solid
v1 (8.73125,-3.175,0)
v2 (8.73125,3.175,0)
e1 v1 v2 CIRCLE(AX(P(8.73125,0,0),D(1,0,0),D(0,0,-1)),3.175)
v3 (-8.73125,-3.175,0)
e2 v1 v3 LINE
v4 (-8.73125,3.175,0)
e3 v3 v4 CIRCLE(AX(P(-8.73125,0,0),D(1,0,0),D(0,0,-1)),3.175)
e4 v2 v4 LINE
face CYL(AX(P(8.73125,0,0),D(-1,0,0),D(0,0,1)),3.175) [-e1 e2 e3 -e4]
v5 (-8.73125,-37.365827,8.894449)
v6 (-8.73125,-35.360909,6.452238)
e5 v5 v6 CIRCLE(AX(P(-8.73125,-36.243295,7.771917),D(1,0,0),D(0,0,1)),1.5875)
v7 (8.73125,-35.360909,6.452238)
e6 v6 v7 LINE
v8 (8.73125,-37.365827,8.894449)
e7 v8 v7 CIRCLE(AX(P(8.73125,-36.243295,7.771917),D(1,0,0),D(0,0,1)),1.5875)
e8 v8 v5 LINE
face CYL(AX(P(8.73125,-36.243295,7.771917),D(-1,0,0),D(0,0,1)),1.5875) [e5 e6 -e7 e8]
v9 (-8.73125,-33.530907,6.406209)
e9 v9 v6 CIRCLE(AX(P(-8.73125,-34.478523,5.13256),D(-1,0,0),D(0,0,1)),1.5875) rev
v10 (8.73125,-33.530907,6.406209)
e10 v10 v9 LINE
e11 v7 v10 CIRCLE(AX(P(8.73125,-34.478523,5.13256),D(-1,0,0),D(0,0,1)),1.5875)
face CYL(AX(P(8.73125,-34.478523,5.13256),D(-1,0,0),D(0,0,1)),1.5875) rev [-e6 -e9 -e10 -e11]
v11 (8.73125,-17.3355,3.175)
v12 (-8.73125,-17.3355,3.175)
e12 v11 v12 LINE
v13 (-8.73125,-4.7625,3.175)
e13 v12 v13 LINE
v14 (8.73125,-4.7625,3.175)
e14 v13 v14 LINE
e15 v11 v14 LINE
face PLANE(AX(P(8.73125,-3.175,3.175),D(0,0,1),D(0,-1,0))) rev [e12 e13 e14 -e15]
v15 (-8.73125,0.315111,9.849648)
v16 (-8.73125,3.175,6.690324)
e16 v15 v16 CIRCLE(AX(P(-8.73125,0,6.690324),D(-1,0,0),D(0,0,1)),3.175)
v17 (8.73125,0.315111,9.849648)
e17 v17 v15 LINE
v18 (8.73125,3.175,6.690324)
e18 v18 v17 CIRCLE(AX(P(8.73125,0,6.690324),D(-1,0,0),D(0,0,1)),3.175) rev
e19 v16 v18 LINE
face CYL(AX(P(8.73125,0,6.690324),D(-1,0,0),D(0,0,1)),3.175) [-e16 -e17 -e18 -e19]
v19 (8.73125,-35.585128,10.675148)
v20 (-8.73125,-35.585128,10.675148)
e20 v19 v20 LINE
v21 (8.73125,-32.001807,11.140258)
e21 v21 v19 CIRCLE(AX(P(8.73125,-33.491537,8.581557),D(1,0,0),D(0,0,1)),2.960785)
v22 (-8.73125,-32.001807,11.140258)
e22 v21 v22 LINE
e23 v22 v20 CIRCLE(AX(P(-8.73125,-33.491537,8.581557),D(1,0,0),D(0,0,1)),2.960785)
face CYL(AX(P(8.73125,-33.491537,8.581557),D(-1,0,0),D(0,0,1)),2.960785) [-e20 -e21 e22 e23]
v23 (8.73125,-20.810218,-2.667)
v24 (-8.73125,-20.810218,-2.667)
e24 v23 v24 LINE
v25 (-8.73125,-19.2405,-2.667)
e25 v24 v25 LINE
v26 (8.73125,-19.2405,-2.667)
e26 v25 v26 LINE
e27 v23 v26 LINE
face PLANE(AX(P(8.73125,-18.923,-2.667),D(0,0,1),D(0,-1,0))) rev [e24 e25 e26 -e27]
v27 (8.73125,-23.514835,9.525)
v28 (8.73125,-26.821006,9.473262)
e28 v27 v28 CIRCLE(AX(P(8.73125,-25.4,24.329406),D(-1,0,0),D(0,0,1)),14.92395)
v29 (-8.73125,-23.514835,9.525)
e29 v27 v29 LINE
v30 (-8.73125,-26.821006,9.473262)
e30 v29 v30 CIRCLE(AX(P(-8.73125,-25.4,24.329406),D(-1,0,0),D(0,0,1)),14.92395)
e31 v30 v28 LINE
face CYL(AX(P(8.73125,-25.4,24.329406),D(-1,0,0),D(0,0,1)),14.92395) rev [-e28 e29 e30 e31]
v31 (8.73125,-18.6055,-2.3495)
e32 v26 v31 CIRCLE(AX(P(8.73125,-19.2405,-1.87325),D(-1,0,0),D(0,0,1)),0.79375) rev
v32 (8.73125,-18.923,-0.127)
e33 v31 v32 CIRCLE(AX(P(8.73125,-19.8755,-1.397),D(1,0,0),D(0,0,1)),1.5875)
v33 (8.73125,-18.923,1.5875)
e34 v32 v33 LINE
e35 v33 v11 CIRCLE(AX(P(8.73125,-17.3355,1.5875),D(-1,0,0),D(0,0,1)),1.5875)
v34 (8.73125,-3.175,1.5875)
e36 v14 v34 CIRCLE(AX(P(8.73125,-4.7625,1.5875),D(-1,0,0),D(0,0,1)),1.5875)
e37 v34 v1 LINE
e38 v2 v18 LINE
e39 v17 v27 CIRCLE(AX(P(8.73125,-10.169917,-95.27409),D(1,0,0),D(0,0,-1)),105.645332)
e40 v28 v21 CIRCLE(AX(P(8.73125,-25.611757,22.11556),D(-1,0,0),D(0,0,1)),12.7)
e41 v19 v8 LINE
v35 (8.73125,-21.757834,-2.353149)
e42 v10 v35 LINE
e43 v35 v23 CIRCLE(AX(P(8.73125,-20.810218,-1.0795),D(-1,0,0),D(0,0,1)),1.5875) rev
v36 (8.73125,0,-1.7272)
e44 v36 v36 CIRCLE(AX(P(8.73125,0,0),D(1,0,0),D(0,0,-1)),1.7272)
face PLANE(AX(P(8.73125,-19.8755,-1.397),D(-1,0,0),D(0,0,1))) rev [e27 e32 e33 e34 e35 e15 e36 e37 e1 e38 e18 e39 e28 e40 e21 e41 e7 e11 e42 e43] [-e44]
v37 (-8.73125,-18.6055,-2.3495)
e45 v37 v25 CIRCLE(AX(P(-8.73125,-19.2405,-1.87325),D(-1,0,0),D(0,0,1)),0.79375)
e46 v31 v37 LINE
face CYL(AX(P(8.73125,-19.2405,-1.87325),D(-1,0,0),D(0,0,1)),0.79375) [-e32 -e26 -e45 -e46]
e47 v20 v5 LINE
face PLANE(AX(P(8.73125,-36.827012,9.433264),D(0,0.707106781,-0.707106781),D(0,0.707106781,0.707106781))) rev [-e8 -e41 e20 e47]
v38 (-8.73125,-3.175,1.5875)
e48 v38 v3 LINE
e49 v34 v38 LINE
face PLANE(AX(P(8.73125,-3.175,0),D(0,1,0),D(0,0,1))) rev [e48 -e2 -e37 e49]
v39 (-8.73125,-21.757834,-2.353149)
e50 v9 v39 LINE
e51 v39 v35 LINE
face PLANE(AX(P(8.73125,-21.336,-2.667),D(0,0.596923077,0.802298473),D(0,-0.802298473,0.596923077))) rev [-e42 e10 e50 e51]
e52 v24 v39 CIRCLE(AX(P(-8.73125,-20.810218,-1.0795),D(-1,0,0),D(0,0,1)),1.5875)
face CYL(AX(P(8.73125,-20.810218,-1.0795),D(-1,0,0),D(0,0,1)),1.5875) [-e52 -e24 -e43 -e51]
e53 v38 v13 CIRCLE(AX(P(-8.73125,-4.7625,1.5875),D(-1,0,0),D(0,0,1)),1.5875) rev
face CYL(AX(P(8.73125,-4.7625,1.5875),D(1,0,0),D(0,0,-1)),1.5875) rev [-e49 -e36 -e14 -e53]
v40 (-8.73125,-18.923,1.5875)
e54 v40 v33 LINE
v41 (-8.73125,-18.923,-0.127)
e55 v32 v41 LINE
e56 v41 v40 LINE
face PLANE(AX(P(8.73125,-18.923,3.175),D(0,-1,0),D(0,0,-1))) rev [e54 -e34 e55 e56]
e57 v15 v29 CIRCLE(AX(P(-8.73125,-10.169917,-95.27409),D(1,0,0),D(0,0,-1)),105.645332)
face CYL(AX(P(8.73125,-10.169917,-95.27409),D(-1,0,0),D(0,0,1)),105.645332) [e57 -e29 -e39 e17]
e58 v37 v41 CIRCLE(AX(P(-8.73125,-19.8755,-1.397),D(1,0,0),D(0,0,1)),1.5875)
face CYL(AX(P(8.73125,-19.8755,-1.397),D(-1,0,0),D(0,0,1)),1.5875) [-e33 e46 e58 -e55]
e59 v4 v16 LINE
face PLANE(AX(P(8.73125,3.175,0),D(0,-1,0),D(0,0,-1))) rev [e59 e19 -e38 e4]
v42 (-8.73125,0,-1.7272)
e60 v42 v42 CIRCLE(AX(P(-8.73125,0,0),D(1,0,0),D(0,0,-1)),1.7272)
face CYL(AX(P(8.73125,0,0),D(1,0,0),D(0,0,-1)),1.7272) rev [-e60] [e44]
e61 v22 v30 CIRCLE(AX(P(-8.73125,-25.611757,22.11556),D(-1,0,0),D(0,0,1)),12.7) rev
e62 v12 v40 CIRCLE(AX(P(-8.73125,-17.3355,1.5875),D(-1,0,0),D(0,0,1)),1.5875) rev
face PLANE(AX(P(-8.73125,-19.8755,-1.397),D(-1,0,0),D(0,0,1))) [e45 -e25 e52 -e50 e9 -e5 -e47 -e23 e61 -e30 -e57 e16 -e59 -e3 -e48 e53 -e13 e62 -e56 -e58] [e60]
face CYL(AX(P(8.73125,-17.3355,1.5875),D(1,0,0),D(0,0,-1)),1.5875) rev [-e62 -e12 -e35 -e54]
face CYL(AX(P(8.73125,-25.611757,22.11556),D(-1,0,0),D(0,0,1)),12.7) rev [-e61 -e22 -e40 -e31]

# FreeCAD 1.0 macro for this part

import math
import FreeCAD as App
import Part
import Sketcher

V = App.Vector
Q = App.Units.Quantity


def edges_at(feature, points):
    """Names of the edges that pass closest to the given points."""
    edges = feature.Shape.Edges
    near = lambda p: min(range(len(edges)), key=lambda i: edges[i].distToShape(Part.Vertex(*p))[0])
    return sorted({f"Edge{near(p) + 1}" for p in points})

doc = App.newDocument("Part")
body = doc.addObject("PartDesign::Body", "Body")

sketch1 = body.newObject("Sketcher::SketchObject", "Sketch")
sketch1.AttachmentSupport = (doc.getObject("YZ_Plane"), [""])
sketch1.MapMode = "FlatFace"
sketch1.addGeometry([
    Part.LineSegment(V(3.2, 0, 0), V(3.2, 9.5, 0)),
    Part.ArcOfCircle(Part.Circle(V(-10.2, -95.3, 0), V(0, 0, 1), 105.6), math.radians(82.74), math.radians(97.26)),
    Part.ArcOfCircle(Part.Circle(V(-25.4, 24.3, 0), V(0, 0, 1), 14.9), math.radians(-114), math.radians(-83)),
    Part.ArcOfCircle(Part.Circle(V(-33.5, 8.6, 0), V(0, 0, 1), 3), math.radians(44), math.radians(135)),
    Part.LineSegment(V(-35.6, 10.7, 0), V(-37.4, 8.9, 0)),
    Part.ArcOfCircle(Part.Circle(V(-36.2, 7.8, 0), V(0, 0, 1), 1.6), math.radians(135), math.radians(315)),
    Part.LineSegment(V(-35.1, 6.6, 0), V(-34.6, 7.2, 0)),
    Part.LineSegment(V(-34.6, 7.2, 0), V(-21.3, -2.7, 0)),
    Part.LineSegment(V(-21.3, -2.7, 0), V(-18.9, -2.7, 0)),
    Part.ArcOfCircle(Part.Circle(V(-19.9, -1.4, 0), V(0, 0, 1), 1.6), math.radians(-53), math.radians(53)),
    Part.LineSegment(V(-18.9, -0.1, 0), V(-18.9, 3.2, 0)),
    Part.LineSegment(V(-18.9, 3.2, 0), V(-3.2, 3.2, 0)),
    Part.LineSegment(V(-3.2, 3.2, 0), V(-3.2, 0, 0)),
    Part.ArcOfCircle(Part.Circle(V(0, 0, 0), V(0, 0, 1), 3.2), math.radians(180), math.radians(360)),
], False)
sketch1.addConstraint([
    Sketcher.Constraint("Coincident", 0, 2, 1, 1),
    Sketcher.Constraint("Tangent", 1, 2, 2, 2),
    Sketcher.Constraint("Coincident", 2, 1, 3, 1),
    Sketcher.Constraint("Tangent", 3, 2, 4, 1),
    Sketcher.Constraint("Tangent", 4, 2, 5, 1),
    Sketcher.Constraint("Tangent", 5, 2, 6, 1),
    Sketcher.Constraint("Coincident", 6, 2, 7, 1),
    Sketcher.Constraint("Coincident", 7, 2, 8, 1),
    Sketcher.Constraint("Coincident", 8, 2, 9, 1),
    Sketcher.Constraint("Coincident", 9, 2, 10, 1),
    Sketcher.Constraint("Coincident", 10, 2, 11, 1),
    Sketcher.Constraint("Coincident", 11, 2, 12, 1),
    Sketcher.Constraint("Tangent", 12, 2, 13, 1),
    Sketcher.Constraint("Tangent", 13, 2, 0, 1),
    Sketcher.Constraint("Vertical", 0),
    Sketcher.Constraint("Horizontal", 8),
    Sketcher.Constraint("Vertical", 10),
    Sketcher.Constraint("Horizontal", 11),
    Sketcher.Constraint("Vertical", 12),
    Sketcher.Constraint("Coincident", 13, 3, -1, 1),
    Sketcher.Constraint("Equal", 5, 9),
    Sketcher.Constraint("Parallel", 4, 6),
    Sketcher.Constraint("Horizontal", 0, 2, 1, 2),
    Sketcher.Constraint("Vertical", 8, 2, 9, 2),
    Sketcher.Constraint("DistanceX", 2, 3, -1, 1, Q("1 in")),
    Sketcher.Constraint("Angle", 4, Q("-135 deg")),
    Sketcher.Constraint("Radius", 5, Q("0.0625 in")),
    Sketcher.Constraint("Radius", 13, Q("0.125 in")),
    Sketcher.Constraint("DistanceX", 11, 1, 11, 2, Q("0.62 in")),
    Sketcher.Constraint("DistanceY", 10, 1, 10, 2, Q("0.13 in")),
    Sketcher.Constraint("DistanceY", 8, 2, 9, 2, Q("0.1 in")),
    Sketcher.Constraint("Distance", 6, Q("0.03 in")),
    Sketcher.Constraint("Distance", 7, Q("0.65 in")),
    Sketcher.Constraint("DistanceX", 8, 1, 8, 2, Q("0.095 in")),
    Sketcher.Constraint("DistanceY", 0, 1, 0, 2, Q("0.375 in")),
    Sketcher.Constraint("DistanceY", 12, 2, 12, 1, Q("0.125 in")),
    Sketcher.Constraint("DistanceY", -1, 1, 6, 2, Q("0.283 in")),
    Sketcher.Constraint("Radius", 1, Q("105.645332 mm")),
    Sketcher.Constraint("Radius", 2, Q("14.92395 mm")),
    Sketcher.Constraint("Radius", 3, Q("2.960785 mm")),
    Sketcher.Constraint("DistanceX", 3, 3, 1, 2, Q("9.976702 mm")),
])
pad1 = body.newObject("PartDesign::Pad", "Pad")
pad1.Profile = sketch1
pad1.Length = Q("0.6875 in")
pad1.Midplane = True
doc.recompute()

fillet = body.newObject("PartDesign::Fillet", "Fillet")
fillet.Base = (pad1, edges_at(pad1, [(0, 3.175, 9.525)]))
fillet.Radius = Q("0.125 in")
doc.recompute()

fillet2 = body.newObject("PartDesign::Fillet", "Fillet001")
fillet2.Base = (fillet, edges_at(fillet, [
    (0, -3.175, 3.175),
    (0, -34.582, 7.188),
    (0, -21.336, -2.667),
    (0, -18.923, 3.175),
]))
fillet2.Radius = Q("0.0625 in")
doc.recompute()

fillet3 = body.newObject("PartDesign::Fillet", "Fillet002")
fillet3.Base = (fillet2, edges_at(fillet2, [(0, -31.378, 10.655)]))
fillet3.Radius = Q("0.5 in")
doc.recompute()

fillet4 = body.newObject("PartDesign::Fillet", "Fillet003")
fillet4.Base = (fillet3, edges_at(fillet3, [(0, -18.923, -2.667)]))
fillet4.Radius = Q("0.03125 in")

sketch2 = body.newObject("Sketcher::SketchObject", "Sketch001")
sketch2.AttachmentSupport = (doc.getObject("YZ_Plane"), [""])
sketch2.MapMode = "FlatFace"
sketch2.AttachmentOffset = App.Placement(V(0, 0, 0.34375 * 25.4), App.Rotation())
sketch2.addGeometry(Part.Circle(V(0, 0, 0), V(0, 0, 1), 1.7), False)
sketch2.addConstraint([
    Sketcher.Constraint("Coincident", 0, 3, -1, 1),
    Sketcher.Constraint("Diameter", 0, Q("0.136 in")),
])
doc.recompute()
hole = body.newObject("PartDesign::Hole", "Hole")
hole.Profile = sketch2
hole.ThreadType = "None"
hole.Diameter = Q("0.136 in")
hole.DepthType = "ThroughAll"

doc.recompute()
